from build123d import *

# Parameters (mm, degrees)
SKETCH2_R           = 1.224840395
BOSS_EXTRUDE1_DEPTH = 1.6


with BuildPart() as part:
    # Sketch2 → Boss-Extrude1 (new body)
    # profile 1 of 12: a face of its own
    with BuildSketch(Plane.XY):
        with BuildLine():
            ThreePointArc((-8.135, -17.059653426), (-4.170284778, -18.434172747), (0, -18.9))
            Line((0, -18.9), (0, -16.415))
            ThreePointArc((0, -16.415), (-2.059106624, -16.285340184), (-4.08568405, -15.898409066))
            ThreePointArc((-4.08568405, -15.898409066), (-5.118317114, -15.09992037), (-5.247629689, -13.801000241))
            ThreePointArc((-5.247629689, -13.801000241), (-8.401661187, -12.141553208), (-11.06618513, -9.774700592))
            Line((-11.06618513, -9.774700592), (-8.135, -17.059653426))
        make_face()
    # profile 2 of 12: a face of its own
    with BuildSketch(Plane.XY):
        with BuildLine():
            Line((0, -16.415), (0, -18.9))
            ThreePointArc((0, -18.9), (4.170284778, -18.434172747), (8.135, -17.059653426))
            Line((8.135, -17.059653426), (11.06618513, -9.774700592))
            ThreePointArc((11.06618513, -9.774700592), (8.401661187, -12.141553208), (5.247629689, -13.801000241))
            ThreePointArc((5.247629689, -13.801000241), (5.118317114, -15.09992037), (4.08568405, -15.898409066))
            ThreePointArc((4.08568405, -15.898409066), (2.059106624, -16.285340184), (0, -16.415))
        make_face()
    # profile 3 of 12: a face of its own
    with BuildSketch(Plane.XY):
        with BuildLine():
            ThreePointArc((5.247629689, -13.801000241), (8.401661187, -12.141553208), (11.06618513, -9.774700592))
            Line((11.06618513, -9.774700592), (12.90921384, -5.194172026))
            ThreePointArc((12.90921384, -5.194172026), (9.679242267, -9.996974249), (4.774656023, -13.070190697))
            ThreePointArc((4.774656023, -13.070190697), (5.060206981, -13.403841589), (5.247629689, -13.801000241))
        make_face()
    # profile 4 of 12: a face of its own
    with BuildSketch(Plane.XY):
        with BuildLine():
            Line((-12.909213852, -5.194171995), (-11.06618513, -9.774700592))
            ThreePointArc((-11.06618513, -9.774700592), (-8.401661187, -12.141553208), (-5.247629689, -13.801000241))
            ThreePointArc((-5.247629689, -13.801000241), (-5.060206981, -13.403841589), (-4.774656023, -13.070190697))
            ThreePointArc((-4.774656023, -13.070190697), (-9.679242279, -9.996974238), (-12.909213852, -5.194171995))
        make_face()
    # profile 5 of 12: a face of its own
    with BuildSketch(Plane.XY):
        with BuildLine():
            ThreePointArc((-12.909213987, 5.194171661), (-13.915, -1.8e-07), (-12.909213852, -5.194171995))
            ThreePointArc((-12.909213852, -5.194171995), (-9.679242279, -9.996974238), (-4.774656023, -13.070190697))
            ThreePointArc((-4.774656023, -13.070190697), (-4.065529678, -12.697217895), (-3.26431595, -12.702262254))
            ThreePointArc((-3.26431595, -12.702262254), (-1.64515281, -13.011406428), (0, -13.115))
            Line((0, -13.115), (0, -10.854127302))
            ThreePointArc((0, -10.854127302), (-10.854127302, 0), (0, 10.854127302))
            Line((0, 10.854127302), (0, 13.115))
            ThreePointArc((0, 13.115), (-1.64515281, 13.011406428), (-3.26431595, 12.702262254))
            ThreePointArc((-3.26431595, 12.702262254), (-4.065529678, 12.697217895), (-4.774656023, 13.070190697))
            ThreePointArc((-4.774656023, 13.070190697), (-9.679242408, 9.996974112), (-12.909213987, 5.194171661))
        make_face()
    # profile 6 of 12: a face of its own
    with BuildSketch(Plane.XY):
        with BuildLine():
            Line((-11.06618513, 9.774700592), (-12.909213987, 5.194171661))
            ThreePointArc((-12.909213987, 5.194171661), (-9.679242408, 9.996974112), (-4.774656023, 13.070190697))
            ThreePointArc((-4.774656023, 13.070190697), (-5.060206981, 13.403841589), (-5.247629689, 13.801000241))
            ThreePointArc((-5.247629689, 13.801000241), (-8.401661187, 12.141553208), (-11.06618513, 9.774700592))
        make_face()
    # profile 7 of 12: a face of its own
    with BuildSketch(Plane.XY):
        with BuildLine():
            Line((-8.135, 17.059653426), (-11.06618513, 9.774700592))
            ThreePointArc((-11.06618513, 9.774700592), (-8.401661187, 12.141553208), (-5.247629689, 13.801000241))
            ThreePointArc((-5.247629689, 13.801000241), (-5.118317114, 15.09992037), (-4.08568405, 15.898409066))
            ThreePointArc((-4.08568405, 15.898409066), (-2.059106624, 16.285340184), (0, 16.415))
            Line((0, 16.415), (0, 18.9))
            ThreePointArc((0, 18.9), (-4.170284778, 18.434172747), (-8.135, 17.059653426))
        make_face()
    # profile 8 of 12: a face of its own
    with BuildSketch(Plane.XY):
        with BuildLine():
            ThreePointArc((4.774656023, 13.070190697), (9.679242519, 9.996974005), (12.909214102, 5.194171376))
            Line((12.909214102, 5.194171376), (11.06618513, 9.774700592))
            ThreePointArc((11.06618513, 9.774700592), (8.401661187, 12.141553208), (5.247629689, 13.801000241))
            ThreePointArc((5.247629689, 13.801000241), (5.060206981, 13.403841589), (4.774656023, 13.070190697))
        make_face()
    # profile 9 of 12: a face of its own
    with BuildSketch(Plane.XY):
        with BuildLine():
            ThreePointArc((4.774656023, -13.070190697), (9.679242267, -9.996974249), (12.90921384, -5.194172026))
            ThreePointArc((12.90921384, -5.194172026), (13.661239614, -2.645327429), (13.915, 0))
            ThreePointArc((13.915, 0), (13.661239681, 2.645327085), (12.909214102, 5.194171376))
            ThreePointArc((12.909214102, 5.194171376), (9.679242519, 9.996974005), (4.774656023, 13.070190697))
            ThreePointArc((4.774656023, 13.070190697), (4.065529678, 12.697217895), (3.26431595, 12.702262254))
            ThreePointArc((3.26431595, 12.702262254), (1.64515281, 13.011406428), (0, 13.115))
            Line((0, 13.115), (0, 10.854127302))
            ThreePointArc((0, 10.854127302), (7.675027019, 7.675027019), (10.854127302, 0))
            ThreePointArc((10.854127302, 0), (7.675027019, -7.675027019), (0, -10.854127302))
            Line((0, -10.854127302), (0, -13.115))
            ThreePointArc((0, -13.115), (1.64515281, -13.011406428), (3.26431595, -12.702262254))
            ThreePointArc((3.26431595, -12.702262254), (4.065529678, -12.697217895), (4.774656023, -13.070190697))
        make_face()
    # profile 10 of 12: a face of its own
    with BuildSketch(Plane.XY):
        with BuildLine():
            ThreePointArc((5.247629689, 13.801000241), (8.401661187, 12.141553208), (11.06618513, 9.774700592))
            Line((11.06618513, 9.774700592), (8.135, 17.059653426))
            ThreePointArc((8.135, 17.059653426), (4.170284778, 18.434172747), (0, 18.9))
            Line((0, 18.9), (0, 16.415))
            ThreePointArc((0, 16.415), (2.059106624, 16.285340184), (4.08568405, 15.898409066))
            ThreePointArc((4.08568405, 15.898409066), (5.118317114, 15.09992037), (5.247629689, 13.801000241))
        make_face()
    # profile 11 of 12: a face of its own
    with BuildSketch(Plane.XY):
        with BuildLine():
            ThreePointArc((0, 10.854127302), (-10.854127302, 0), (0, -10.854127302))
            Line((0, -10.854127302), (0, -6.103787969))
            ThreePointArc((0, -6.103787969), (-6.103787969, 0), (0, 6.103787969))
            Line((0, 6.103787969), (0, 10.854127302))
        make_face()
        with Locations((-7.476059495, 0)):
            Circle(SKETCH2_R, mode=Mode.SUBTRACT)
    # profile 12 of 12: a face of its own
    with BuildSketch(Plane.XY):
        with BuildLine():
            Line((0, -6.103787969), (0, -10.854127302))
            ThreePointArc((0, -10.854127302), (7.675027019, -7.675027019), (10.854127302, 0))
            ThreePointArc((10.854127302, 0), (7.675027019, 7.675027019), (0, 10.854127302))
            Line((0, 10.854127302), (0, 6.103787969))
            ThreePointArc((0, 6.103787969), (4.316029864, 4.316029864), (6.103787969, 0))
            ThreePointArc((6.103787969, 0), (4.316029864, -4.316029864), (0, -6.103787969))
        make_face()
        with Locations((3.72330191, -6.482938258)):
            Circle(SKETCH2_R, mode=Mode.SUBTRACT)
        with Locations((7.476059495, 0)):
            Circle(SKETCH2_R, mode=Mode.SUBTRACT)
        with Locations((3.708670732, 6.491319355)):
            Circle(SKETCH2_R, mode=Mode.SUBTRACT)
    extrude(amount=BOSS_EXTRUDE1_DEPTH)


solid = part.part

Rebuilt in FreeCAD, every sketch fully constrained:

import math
import FreeCAD as App
import Part
import Sketcher
from FreeCAD import Vector

doc = App.newDocument("Part")
body = doc.addObject("PartDesign::Body", "Body")

sketch1 = body.newObject("Sketcher::SketchObject", "Sketch")
sketch1.AttachmentSupport = (doc.getObject("XY_Plane"), [""])
sketch1.MapMode = "FlatFace"
sketch1.addGeometry(Part.ArcOfCircle(Part.Circle(Vector(0, 0, 0), Vector(0, 0, 1), 18.9), math.radians(-115), math.radians(-90)), False)
sketch1.addGeometry(Part.ArcOfCircle(Part.Circle(Vector(0, 0, 0), Vector(0, 0, 1), 18.9), math.radians(-90), math.radians(-65)), False)
sketch1.addGeometry(Part.LineSegment(Vector(8.1, -17.1, 0), Vector(11.1, -9.8, 0)), False)
sketch1.addGeometry(Part.LineSegment(Vector(11.1, -9.8, 0), Vector(12.9, -5.2, 0)), False)
sketch1.addGeometry(Part.ArcOfCircle(Part.Circle(Vector(0, 0, 0), Vector(0, 0, 1), 13.9), math.radians(-22), math.radians(0)), False)
sketch1.addGeometry(Part.ArcOfCircle(Part.Circle(Vector(0, 0, 0), Vector(0, 0, 1), 13.9), math.radians(0), math.radians(22)), False)
sketch1.addGeometry(Part.LineSegment(Vector(12.9, 5.2, 0), Vector(11.1, 9.8, 0)), False)
sketch1.addGeometry(Part.LineSegment(Vector(11.1, 9.8, 0), Vector(8.1, 17.1, 0)), False)
sketch1.addGeometry(Part.ArcOfCircle(Part.Circle(Vector(0, 0, 0), Vector(0, 0, 1), 18.9), math.radians(65), math.radians(90)), False)
sketch1.addGeometry(Part.ArcOfCircle(Part.Circle(Vector(0, 0, 0), Vector(0, 0, 1), 18.9), math.radians(90), math.radians(115)), False)
sketch1.addGeometry(Part.LineSegment(Vector(-8.1, 17.1, 0), Vector(-11.1, 9.8, 0)), False)
sketch1.addGeometry(Part.LineSegment(Vector(-11.1, 9.8, 0), Vector(-12.9, 5.2, 0)), False)
sketch1.addGeometry(Part.ArcOfCircle(Part.Circle(Vector(0, 0, 0), Vector(0, 0, 1), 13.9), math.radians(158), math.radians(202)), False)
sketch1.addGeometry(Part.LineSegment(Vector(-12.9, -5.2, 0), Vector(-11.1, -9.8, 0)), False)
sketch1.addGeometry(Part.LineSegment(Vector(-11.1, -9.8, 0), Vector(-8.1, -17.1, 0)), False)
sketch1.addGeometry(Part.ArcOfCircle(Part.Circle(Vector(0, 0, 0), Vector(0, 0, 1), 16.4), math.radians(-104.41), math.radians(-90)), False)
sketch1.addGeometry(Part.ArcOfCircle(Part.Circle(Vector(-3.7, -14.3, 0), Vector(0, 0, 1), 1.6), math.radians(162), math.radians(256)), False)
sketch1.addGeometry(Part.ArcOfCircle(Part.Circle(Vector(-3.7, -14.3, 0), Vector(0, 0, 1), 1.6), math.radians(132), math.radians(162)), False)
sketch1.addGeometry(Part.ArcOfCircle(Part.Circle(Vector(-3.7, -14.3, 0), Vector(0, 0, 1), 1.7), math.radians(76), math.radians(132)), False)
sketch1.addGeometry(Part.ArcOfCircle(Part.Circle(Vector(0, 0, 0), Vector(0, 0, 1), 13.1), math.radians(-104.41), math.radians(-90)), False)
sketch1.addGeometry(Part.ArcOfCircle(Part.Circle(Vector(0, 0, 0), Vector(0, 0, 1), 13.1), math.radians(-90), math.radians(-75.59)), False)
sketch1.addGeometry(Part.ArcOfCircle(Part.Circle(Vector(3.7, -14.3, 0), Vector(0, 0, 1), 1.7), math.radians(48), math.radians(104)), False)
sketch1.addGeometry(Part.ArcOfCircle(Part.Circle(Vector(3.7, -14.3, 0), Vector(0, 0, 1), 1.6), math.radians(18), math.radians(48)), False)
sketch1.addGeometry(Part.ArcOfCircle(Part.Circle(Vector(3.7, -14.3, 0), Vector(0, 0, 1), 1.6), math.radians(-76), math.radians(18)), False)
sketch1.addGeometry(Part.ArcOfCircle(Part.Circle(Vector(0, 0, 0), Vector(0, 0, 1), 16.4), math.radians(-90), math.radians(-75.59)), False)
sketch1.addGeometry(Part.ArcOfCircle(Part.Circle(Vector(0, 0, 0), Vector(0, 0, 1), 13.1), math.radians(90), math.radians(104.41)), False)
sketch1.addGeometry(Part.ArcOfCircle(Part.Circle(Vector(-3.7, 14.3, 0), Vector(0, 0, 1), 1.7), math.radians(-132), math.radians(-76)), False)
sketch1.addGeometry(Part.ArcOfCircle(Part.Circle(Vector(-3.7, 14.3, 0), Vector(0, 0, 1), 1.6), math.radians(-162), math.radians(-132)), False)
sketch1.addGeometry(Part.ArcOfCircle(Part.Circle(Vector(-3.7, 14.3, 0), Vector(0, 0, 1), 1.6), math.radians(104), math.radians(198)), False)
sketch1.addGeometry(Part.ArcOfCircle(Part.Circle(Vector(0, 0, 0), Vector(0, 0, 1), 16.4), math.radians(90), math.radians(104.41)), False)
sketch1.addGeometry(Part.ArcOfCircle(Part.Circle(Vector(0, 0, 0), Vector(0, 0, 1), 16.4), math.radians(75.59), math.radians(90)), False)
sketch1.addGeometry(Part.ArcOfCircle(Part.Circle(Vector(3.7, 14.3, 0), Vector(0, 0, 1), 1.6), math.radians(-18), math.radians(76)), False)
sketch1.addGeometry(Part.ArcOfCircle(Part.Circle(Vector(3.7, 14.3, 0), Vector(0, 0, 1), 1.6), math.radians(-48), math.radians(-18)), False)
sketch1.addGeometry(Part.ArcOfCircle(Part.Circle(Vector(3.7, 14.3, 0), Vector(0, 0, 1), 1.7), math.radians(-104), math.radians(-48)), False)
sketch1.addGeometry(Part.ArcOfCircle(Part.Circle(Vector(0, 0, 0), Vector(0, 0, 1), 13.1), math.radians(75.59), math.radians(90)), False)
sketch1.addGeometry(Part.Circle(Vector(-7.5, 0, 0), Vector(0, 0, 1), 1.2), False)
sketch1.addGeometry(Part.ArcOfCircle(Part.Circle(Vector(0, 0, 0), Vector(0, 0, 1), 6.1), math.radians(90), math.radians(270)), False)
sketch1.addGeometry(Part.ArcOfCircle(Part.Circle(Vector(0, 0, 0), Vector(0, 0, 1), 6.1), math.radians(0), math.radians(90)), False)
sketch1.addGeometry(Part.ArcOfCircle(Part.Circle(Vector(0, 0, 0), Vector(0, 0, 1), 6.1), math.radians(-90), math.radians(0)), False)
sketch1.addGeometry(Part.Circle(Vector(3.7, -6.5, 0), Vector(0, 0, 1), 1.2), False)
sketch1.addGeometry(Part.Circle(Vector(7.5, 0, 0), Vector(0, 0, 1), 1.2), False)
sketch1.addGeometry(Part.Circle(Vector(3.7, 6.5, 0), Vector(0, 0, 1), 1.2), False)
sketch1.addConstraint(Sketcher.Constraint("Tangent", 0, 2, 1, 1))
sketch1.addConstraint(Sketcher.Constraint("Coincident", 1, 2, 2, 1))
sketch1.addConstraint(Sketcher.Constraint("Coincident", 2, 2, 3, 1))
sketch1.addConstraint(Sketcher.Constraint("Tangent", 3, 2, 4, 1))
sketch1.addConstraint(Sketcher.Constraint("Tangent", 4, 2, 5, 1))
sketch1.addConstraint(Sketcher.Constraint("Tangent", 5, 2, 6, 1))
sketch1.addConstraint(Sketcher.Constraint("Coincident", 6, 2, 7, 1))
sketch1.addConstraint(Sketcher.Constraint("Coincident", 7, 2, 8, 1))
sketch1.addConstraint(Sketcher.Constraint("Tangent", 8, 2, 9, 1))
sketch1.addConstraint(Sketcher.Constraint("Coincident", 9, 2, 10, 1))
sketch1.addConstraint(Sketcher.Constraint("Coincident", 10, 2, 11, 1))
sketch1.addConstraint(Sketcher.Constraint("Tangent", 11, 2, 12, 1))
sketch1.addConstraint(Sketcher.Constraint("Tangent", 12, 2, 13, 1))
sketch1.addConstraint(Sketcher.Constraint("Coincident", 13, 2, 14, 1))
sketch1.addConstraint(Sketcher.Constraint("Coincident", 14, 2, 0, 1))
sketch1.addConstraint(Sketcher.Constraint("Tangent", 15, 1, 16, 2))
sketch1.addConstraint(Sketcher.Constraint("Tangent", 16, 1, 17, 2))
sketch1.addConstraint(Sketcher.Constraint("Tangent", 17, 1, 18, 2))
sketch1.addConstraint(Sketcher.Constraint("Tangent", 18, 1, 19, 1))
sketch1.addConstraint(Sketcher.Constraint("Tangent", 19, 2, 20, 1))
sketch1.addConstraint(Sketcher.Constraint("Tangent", 20, 2, 21, 2))
sketch1.addConstraint(Sketcher.Constraint("Tangent", 21, 1, 22, 2))
sketch1.addConstraint(Sketcher.Constraint("Tangent", 22, 1, 23, 2))
sketch1.addConstraint(Sketcher.Constraint("Tangent", 23, 1, 24, 2))
sketch1.addConstraint(Sketcher.Constraint("Tangent", 24, 1, 15, 2))
sketch1.addConstraint(Sketcher.Constraint("Tangent", 25, 2, 26, 2))
sketch1.addConstraint(Sketcher.Constraint("Tangent", 26, 1, 27, 2))
sketch1.addConstraint(Sketcher.Constraint("Tangent", 27, 1, 28, 2))
sketch1.addConstraint(Sketcher.Constraint("Tangent", 28, 1, 29, 2))
sketch1.addConstraint(Sketcher.Constraint("Tangent", 29, 1, 30, 2))
sketch1.addConstraint(Sketcher.Constraint("Tangent", 30, 1, 31, 2))
sketch1.addConstraint(Sketcher.Constraint("Tangent", 31, 1, 32, 2))
sketch1.addConstraint(Sketcher.Constraint("Tangent", 32, 1, 33, 2))
sketch1.addConstraint(Sketcher.Constraint("Tangent", 33, 1, 34, 1))
sketch1.addConstraint(Sketcher.Constraint("Tangent", 34, 2, 25, 1))
sketch1.addConstraint(Sketcher.Constraint("Tangent", 36, 1, 37, 2))
sketch1.addConstraint(Sketcher.Constraint("Tangent", 37, 1, 38, 2))
sketch1.addConstraint(Sketcher.Constraint("Tangent", 38, 1, 36, 2))
sketch1.addConstraint(Sketcher.Constraint("Coincident", 0, 3, -1, 1))
sketch1.addConstraint(Sketcher.Constraint("Coincident", 4, 3, -1, 1))
sketch1.addConstraint(Sketcher.Constraint("Coincident", 8, 3, -1, 1))
sketch1.addConstraint(Sketcher.Constraint("Coincident", 12, 3, -1, 1))
sketch1.addConstraint(Sketcher.Constraint("Coincident", 15, 3, -1, 1))
sketch1.addConstraint(Sketcher.Constraint("Coincident", 19, 3, -1, 1))
sketch1.addConstraint(Sketcher.Constraint("Coincident", 25, 3, -1, 1))
sketch1.addConstraint(Sketcher.Constraint("Coincident", 29, 3, -1, 1))
sketch1.addConstraint(Sketcher.Constraint("Coincident", 36, 3, -1, 1))
sketch1.addConstraint(Sketcher.Constraint("Coincident", 18, 3, 16, 3))
sketch1.addConstraint(Sketcher.Constraint("Coincident", 23, 3, 21, 3))
sketch1.addConstraint(Sketcher.Constraint("Coincident", 28, 3, 26, 3))
sketch1.addConstraint(Sketcher.Constraint("Coincident", 33, 3, 31, 3))
sketch1.addConstraint(Sketcher.Constraint("Equal", 0, 1))
sketch1.addConstraint(Sketcher.Constraint("Equal", 4, 5))
sketch1.addConstraint(Sketcher.Constraint("Equal", 1, 8))
sketch1.addConstraint(Sketcher.Constraint("Equal", 8, 9))
sketch1.addConstraint(Sketcher.Constraint("Equal", 5, 12))
sketch1.addConstraint(Sketcher.Constraint("Equal", 19, 20))
sketch1.addConstraint(Sketcher.Constraint("Equal", 18, 21))
sketch1.addConstraint(Sketcher.Constraint("Equal", 20, 25))
sketch1.addConstraint(Sketcher.Constraint("Equal", 23, 26))
sketch1.addConstraint(Sketcher.Constraint("Equal", 29, 30))
sketch1.addConstraint(Sketcher.Constraint("Equal", 28, 31))
sketch1.addConstraint(Sketcher.Constraint("Equal", 35, 39))
sketch1.addConstraint(Sketcher.Constraint("Equal", 39, 40))
sketch1.addConstraint(Sketcher.Constraint("Equal", 40, 41))
sketch1.addConstraint(Sketcher.Constraint("Symmetric", 35, 3, 40, 3, -1, 1))
sketch1.addConstraint(Sketcher.Constraint("Symmetric", 2, 2, 10, 2, -1, 1))
sketch1.addConstraint(Sketcher.Constraint("Symmetric", 6, 2, 13, 2, -1, 1))
sketch1.addConstraint(Sketcher.Constraint("Symmetric", 21, 1, 26, 1, -1, 1))
sketch1.addConstraint(Sketcher.Constraint("Symmetric", 16, 1, 31, 1, -1, 1))
sketch1.addConstraint(Sketcher.Constraint("Symmetric", 6, 2, 10, 2, -2))
sketch1.addConstraint(Sketcher.Constraint("Symmetric", 17, 1, 21, 1, -2))
sketch1.addConstraint(Sketcher.Constraint("PointOnObject", 35, 3, -1))
sketch1.addConstraint(Sketcher.Constraint("PointOnObject", 0, 2, -2))
sketch1.addConstraint(Sketcher.Constraint("PointOnObject", 4, 2, -1))
sketch1.addConstraint(Sketcher.Constraint("PointOnObject", 8, 2, -2))
sketch1.addConstraint(Sketcher.Constraint("PointOnObject", 19, 2, -2))
sketch1.addConstraint(Sketcher.Constraint("PointOnObject", 24, 1, -2))
sketch1.addConstraint(Sketcher.Constraint("PointOnObject", 29, 1, -2))
sketch1.addConstraint(Sketcher.Constraint("PointOnObject", 34, 2, -2))
sketch1.addConstraint(Sketcher.Constraint("PointOnObject", 36, 1, -2))
sketch1.addConstraint(Sketcher.Constraint("PointOnObject", 37, 1, -1))
sketch1.addConstraint(Sketcher.Constraint("PointOnObject", 38, 1, -2))
sketch1.addConstraint(Sketcher.Constraint("Parallel", 2, 3))
sketch1.addConstraint(Sketcher.Constraint("Parallel", 6, 7))
sketch1.addConstraint(Sketcher.Constraint("Parallel", 3, 10))
sketch1.addConstraint(Sketcher.Constraint("Parallel", 13, 14))
sketch1.addConstraint(Sketcher.Constraint("Horizontal", 16, 1, 22, 1))
sketch1.addConstraint(Sketcher.Constraint("Horizontal", 27, 1, 31, 1))
sketch1.addConstraint(Sketcher.Constraint("Horizontal", 26, 1, 32, 1))
sketch1.addConstraint(Sketcher.Constraint("Radius", 0, 18.9))
sketch1.addConstraint(Sketcher.Constraint("Radius", 16, 1.65))
sketch1.addConstraint(Sketcher.Constraint("Radius", 4, 13.915))
sketch1.addConstraint(Sketcher.Constraint("Radius", 15, 16.415))
sketch1.addConstraint(Sketcher.Constraint("Diameter", 35, 2.449681))
sketch1.addConstraint(Sketcher.Constraint("DistanceX", 16, 3, -1, 1, 3.675))
sketch1.addConstraint(Sketcher.Constraint("DistanceX", -1, 1, 1, 2, 8.135))
sketch1.addConstraint(Sketcher.Constraint("DistanceY", 16, 1, -1, 1, 13.801))
sketch1.addConstraint(Sketcher.Constraint("Radius", 36, 6.103788))
sketch1.addConstraint(Sketcher.Constraint("DistanceX", -1, 1, 39, 3, 3.723302))
sketch1.addConstraint(Sketcher.Constraint("DistanceY", 2, 2, -1, 1, 9.774701))
sketch1.addConstraint(Sketcher.Constraint("DistanceX", 35, 3, -1, 1, 7.476059))
sketch1.addConstraint(Sketcher.Constraint("DistanceY", 39, 3, -1, 1, 6.482938))
sketch1.addConstraint(Sketcher.Constraint("DistanceX", -1, 1, 41, 3, 3.708671))
sketch1.addConstraint(Sketcher.Constraint("DistanceY", -1, 1, 41, 3, 6.491319))
sketch1.addConstraint(Sketcher.Constraint("DistanceY", 17, 1, -1, 1, 13.070191))
pad1 = body.newObject("PartDesign::Pad", "Pad")
pad1.Profile = sketch1
pad1.Length = 1.6

doc.recompute()
